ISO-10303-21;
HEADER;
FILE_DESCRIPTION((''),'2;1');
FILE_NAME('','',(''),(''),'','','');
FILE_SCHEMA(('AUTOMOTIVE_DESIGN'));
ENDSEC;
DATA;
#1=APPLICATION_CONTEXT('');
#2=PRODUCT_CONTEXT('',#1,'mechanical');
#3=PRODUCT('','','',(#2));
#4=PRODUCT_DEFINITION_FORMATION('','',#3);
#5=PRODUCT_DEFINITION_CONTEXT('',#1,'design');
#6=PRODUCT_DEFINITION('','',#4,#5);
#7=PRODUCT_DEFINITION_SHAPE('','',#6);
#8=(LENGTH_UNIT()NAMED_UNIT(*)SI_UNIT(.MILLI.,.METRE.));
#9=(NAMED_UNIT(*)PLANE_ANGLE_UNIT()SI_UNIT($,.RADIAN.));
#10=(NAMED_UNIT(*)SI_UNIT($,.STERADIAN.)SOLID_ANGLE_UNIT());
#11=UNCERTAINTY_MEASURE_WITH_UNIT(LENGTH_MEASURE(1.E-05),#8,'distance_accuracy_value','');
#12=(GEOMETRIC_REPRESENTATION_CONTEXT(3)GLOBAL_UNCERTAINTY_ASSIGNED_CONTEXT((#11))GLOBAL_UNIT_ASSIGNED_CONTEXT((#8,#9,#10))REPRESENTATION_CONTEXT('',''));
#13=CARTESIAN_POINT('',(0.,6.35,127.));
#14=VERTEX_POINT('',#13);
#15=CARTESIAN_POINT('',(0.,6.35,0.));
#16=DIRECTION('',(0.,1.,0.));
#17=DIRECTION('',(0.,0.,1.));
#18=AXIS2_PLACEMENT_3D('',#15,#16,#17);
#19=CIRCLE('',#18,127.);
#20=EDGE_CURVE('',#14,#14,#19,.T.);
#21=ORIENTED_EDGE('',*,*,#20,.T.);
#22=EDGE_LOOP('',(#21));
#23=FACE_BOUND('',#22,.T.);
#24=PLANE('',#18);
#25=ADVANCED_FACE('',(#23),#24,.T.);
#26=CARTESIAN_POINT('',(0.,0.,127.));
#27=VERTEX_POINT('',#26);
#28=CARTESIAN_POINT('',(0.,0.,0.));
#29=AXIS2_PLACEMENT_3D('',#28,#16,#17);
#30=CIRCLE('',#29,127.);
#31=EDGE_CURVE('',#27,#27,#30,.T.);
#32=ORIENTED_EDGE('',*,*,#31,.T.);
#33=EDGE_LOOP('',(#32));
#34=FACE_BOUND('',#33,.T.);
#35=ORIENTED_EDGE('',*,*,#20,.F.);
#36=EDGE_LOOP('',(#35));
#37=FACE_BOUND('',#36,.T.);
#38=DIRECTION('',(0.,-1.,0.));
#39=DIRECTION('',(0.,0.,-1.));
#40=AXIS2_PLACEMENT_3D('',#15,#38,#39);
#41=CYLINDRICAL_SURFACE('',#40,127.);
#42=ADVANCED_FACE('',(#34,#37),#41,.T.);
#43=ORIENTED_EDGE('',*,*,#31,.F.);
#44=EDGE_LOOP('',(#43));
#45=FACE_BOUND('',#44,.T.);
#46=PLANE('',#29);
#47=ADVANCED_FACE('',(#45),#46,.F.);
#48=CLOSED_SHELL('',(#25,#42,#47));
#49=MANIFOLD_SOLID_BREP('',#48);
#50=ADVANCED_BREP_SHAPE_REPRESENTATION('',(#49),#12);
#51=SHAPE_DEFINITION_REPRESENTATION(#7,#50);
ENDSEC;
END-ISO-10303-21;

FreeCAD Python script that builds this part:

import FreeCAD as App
import Part
import Sketcher
from FreeCAD import Vector
Q = App.Units.Quantity

doc = App.newDocument("Part")
body = doc.addObject("PartDesign::Body", "Body")

# Sketch on XZ plane
sketch1 = doc.addObject("Sketcher::SketchObject", "Sketch")
body.addObject(sketch1)
sketch1.AttachmentSupport = (doc.XZ_Plane, [""])
sketch1.MapMode = "FlatFace"
sketch1.addGeometry(Part.Circle(Vector(0, 0, 0), Vector(0, 0, 1), 127), False)
sketch1.addConstraint([
    Sketcher.Constraint("Coincident", 0, 3, -1, 1),
    Sketcher.Constraint("Diameter", 0, Q("10 in")),
])
pad1 = doc.addObject("PartDesign::Pad", "Pad")
body.addObject(pad1)
pad1.Profile = sketch1
pad1.Length = Q("0.25 in")
pad1.Reversed = True

doc.recompute()
